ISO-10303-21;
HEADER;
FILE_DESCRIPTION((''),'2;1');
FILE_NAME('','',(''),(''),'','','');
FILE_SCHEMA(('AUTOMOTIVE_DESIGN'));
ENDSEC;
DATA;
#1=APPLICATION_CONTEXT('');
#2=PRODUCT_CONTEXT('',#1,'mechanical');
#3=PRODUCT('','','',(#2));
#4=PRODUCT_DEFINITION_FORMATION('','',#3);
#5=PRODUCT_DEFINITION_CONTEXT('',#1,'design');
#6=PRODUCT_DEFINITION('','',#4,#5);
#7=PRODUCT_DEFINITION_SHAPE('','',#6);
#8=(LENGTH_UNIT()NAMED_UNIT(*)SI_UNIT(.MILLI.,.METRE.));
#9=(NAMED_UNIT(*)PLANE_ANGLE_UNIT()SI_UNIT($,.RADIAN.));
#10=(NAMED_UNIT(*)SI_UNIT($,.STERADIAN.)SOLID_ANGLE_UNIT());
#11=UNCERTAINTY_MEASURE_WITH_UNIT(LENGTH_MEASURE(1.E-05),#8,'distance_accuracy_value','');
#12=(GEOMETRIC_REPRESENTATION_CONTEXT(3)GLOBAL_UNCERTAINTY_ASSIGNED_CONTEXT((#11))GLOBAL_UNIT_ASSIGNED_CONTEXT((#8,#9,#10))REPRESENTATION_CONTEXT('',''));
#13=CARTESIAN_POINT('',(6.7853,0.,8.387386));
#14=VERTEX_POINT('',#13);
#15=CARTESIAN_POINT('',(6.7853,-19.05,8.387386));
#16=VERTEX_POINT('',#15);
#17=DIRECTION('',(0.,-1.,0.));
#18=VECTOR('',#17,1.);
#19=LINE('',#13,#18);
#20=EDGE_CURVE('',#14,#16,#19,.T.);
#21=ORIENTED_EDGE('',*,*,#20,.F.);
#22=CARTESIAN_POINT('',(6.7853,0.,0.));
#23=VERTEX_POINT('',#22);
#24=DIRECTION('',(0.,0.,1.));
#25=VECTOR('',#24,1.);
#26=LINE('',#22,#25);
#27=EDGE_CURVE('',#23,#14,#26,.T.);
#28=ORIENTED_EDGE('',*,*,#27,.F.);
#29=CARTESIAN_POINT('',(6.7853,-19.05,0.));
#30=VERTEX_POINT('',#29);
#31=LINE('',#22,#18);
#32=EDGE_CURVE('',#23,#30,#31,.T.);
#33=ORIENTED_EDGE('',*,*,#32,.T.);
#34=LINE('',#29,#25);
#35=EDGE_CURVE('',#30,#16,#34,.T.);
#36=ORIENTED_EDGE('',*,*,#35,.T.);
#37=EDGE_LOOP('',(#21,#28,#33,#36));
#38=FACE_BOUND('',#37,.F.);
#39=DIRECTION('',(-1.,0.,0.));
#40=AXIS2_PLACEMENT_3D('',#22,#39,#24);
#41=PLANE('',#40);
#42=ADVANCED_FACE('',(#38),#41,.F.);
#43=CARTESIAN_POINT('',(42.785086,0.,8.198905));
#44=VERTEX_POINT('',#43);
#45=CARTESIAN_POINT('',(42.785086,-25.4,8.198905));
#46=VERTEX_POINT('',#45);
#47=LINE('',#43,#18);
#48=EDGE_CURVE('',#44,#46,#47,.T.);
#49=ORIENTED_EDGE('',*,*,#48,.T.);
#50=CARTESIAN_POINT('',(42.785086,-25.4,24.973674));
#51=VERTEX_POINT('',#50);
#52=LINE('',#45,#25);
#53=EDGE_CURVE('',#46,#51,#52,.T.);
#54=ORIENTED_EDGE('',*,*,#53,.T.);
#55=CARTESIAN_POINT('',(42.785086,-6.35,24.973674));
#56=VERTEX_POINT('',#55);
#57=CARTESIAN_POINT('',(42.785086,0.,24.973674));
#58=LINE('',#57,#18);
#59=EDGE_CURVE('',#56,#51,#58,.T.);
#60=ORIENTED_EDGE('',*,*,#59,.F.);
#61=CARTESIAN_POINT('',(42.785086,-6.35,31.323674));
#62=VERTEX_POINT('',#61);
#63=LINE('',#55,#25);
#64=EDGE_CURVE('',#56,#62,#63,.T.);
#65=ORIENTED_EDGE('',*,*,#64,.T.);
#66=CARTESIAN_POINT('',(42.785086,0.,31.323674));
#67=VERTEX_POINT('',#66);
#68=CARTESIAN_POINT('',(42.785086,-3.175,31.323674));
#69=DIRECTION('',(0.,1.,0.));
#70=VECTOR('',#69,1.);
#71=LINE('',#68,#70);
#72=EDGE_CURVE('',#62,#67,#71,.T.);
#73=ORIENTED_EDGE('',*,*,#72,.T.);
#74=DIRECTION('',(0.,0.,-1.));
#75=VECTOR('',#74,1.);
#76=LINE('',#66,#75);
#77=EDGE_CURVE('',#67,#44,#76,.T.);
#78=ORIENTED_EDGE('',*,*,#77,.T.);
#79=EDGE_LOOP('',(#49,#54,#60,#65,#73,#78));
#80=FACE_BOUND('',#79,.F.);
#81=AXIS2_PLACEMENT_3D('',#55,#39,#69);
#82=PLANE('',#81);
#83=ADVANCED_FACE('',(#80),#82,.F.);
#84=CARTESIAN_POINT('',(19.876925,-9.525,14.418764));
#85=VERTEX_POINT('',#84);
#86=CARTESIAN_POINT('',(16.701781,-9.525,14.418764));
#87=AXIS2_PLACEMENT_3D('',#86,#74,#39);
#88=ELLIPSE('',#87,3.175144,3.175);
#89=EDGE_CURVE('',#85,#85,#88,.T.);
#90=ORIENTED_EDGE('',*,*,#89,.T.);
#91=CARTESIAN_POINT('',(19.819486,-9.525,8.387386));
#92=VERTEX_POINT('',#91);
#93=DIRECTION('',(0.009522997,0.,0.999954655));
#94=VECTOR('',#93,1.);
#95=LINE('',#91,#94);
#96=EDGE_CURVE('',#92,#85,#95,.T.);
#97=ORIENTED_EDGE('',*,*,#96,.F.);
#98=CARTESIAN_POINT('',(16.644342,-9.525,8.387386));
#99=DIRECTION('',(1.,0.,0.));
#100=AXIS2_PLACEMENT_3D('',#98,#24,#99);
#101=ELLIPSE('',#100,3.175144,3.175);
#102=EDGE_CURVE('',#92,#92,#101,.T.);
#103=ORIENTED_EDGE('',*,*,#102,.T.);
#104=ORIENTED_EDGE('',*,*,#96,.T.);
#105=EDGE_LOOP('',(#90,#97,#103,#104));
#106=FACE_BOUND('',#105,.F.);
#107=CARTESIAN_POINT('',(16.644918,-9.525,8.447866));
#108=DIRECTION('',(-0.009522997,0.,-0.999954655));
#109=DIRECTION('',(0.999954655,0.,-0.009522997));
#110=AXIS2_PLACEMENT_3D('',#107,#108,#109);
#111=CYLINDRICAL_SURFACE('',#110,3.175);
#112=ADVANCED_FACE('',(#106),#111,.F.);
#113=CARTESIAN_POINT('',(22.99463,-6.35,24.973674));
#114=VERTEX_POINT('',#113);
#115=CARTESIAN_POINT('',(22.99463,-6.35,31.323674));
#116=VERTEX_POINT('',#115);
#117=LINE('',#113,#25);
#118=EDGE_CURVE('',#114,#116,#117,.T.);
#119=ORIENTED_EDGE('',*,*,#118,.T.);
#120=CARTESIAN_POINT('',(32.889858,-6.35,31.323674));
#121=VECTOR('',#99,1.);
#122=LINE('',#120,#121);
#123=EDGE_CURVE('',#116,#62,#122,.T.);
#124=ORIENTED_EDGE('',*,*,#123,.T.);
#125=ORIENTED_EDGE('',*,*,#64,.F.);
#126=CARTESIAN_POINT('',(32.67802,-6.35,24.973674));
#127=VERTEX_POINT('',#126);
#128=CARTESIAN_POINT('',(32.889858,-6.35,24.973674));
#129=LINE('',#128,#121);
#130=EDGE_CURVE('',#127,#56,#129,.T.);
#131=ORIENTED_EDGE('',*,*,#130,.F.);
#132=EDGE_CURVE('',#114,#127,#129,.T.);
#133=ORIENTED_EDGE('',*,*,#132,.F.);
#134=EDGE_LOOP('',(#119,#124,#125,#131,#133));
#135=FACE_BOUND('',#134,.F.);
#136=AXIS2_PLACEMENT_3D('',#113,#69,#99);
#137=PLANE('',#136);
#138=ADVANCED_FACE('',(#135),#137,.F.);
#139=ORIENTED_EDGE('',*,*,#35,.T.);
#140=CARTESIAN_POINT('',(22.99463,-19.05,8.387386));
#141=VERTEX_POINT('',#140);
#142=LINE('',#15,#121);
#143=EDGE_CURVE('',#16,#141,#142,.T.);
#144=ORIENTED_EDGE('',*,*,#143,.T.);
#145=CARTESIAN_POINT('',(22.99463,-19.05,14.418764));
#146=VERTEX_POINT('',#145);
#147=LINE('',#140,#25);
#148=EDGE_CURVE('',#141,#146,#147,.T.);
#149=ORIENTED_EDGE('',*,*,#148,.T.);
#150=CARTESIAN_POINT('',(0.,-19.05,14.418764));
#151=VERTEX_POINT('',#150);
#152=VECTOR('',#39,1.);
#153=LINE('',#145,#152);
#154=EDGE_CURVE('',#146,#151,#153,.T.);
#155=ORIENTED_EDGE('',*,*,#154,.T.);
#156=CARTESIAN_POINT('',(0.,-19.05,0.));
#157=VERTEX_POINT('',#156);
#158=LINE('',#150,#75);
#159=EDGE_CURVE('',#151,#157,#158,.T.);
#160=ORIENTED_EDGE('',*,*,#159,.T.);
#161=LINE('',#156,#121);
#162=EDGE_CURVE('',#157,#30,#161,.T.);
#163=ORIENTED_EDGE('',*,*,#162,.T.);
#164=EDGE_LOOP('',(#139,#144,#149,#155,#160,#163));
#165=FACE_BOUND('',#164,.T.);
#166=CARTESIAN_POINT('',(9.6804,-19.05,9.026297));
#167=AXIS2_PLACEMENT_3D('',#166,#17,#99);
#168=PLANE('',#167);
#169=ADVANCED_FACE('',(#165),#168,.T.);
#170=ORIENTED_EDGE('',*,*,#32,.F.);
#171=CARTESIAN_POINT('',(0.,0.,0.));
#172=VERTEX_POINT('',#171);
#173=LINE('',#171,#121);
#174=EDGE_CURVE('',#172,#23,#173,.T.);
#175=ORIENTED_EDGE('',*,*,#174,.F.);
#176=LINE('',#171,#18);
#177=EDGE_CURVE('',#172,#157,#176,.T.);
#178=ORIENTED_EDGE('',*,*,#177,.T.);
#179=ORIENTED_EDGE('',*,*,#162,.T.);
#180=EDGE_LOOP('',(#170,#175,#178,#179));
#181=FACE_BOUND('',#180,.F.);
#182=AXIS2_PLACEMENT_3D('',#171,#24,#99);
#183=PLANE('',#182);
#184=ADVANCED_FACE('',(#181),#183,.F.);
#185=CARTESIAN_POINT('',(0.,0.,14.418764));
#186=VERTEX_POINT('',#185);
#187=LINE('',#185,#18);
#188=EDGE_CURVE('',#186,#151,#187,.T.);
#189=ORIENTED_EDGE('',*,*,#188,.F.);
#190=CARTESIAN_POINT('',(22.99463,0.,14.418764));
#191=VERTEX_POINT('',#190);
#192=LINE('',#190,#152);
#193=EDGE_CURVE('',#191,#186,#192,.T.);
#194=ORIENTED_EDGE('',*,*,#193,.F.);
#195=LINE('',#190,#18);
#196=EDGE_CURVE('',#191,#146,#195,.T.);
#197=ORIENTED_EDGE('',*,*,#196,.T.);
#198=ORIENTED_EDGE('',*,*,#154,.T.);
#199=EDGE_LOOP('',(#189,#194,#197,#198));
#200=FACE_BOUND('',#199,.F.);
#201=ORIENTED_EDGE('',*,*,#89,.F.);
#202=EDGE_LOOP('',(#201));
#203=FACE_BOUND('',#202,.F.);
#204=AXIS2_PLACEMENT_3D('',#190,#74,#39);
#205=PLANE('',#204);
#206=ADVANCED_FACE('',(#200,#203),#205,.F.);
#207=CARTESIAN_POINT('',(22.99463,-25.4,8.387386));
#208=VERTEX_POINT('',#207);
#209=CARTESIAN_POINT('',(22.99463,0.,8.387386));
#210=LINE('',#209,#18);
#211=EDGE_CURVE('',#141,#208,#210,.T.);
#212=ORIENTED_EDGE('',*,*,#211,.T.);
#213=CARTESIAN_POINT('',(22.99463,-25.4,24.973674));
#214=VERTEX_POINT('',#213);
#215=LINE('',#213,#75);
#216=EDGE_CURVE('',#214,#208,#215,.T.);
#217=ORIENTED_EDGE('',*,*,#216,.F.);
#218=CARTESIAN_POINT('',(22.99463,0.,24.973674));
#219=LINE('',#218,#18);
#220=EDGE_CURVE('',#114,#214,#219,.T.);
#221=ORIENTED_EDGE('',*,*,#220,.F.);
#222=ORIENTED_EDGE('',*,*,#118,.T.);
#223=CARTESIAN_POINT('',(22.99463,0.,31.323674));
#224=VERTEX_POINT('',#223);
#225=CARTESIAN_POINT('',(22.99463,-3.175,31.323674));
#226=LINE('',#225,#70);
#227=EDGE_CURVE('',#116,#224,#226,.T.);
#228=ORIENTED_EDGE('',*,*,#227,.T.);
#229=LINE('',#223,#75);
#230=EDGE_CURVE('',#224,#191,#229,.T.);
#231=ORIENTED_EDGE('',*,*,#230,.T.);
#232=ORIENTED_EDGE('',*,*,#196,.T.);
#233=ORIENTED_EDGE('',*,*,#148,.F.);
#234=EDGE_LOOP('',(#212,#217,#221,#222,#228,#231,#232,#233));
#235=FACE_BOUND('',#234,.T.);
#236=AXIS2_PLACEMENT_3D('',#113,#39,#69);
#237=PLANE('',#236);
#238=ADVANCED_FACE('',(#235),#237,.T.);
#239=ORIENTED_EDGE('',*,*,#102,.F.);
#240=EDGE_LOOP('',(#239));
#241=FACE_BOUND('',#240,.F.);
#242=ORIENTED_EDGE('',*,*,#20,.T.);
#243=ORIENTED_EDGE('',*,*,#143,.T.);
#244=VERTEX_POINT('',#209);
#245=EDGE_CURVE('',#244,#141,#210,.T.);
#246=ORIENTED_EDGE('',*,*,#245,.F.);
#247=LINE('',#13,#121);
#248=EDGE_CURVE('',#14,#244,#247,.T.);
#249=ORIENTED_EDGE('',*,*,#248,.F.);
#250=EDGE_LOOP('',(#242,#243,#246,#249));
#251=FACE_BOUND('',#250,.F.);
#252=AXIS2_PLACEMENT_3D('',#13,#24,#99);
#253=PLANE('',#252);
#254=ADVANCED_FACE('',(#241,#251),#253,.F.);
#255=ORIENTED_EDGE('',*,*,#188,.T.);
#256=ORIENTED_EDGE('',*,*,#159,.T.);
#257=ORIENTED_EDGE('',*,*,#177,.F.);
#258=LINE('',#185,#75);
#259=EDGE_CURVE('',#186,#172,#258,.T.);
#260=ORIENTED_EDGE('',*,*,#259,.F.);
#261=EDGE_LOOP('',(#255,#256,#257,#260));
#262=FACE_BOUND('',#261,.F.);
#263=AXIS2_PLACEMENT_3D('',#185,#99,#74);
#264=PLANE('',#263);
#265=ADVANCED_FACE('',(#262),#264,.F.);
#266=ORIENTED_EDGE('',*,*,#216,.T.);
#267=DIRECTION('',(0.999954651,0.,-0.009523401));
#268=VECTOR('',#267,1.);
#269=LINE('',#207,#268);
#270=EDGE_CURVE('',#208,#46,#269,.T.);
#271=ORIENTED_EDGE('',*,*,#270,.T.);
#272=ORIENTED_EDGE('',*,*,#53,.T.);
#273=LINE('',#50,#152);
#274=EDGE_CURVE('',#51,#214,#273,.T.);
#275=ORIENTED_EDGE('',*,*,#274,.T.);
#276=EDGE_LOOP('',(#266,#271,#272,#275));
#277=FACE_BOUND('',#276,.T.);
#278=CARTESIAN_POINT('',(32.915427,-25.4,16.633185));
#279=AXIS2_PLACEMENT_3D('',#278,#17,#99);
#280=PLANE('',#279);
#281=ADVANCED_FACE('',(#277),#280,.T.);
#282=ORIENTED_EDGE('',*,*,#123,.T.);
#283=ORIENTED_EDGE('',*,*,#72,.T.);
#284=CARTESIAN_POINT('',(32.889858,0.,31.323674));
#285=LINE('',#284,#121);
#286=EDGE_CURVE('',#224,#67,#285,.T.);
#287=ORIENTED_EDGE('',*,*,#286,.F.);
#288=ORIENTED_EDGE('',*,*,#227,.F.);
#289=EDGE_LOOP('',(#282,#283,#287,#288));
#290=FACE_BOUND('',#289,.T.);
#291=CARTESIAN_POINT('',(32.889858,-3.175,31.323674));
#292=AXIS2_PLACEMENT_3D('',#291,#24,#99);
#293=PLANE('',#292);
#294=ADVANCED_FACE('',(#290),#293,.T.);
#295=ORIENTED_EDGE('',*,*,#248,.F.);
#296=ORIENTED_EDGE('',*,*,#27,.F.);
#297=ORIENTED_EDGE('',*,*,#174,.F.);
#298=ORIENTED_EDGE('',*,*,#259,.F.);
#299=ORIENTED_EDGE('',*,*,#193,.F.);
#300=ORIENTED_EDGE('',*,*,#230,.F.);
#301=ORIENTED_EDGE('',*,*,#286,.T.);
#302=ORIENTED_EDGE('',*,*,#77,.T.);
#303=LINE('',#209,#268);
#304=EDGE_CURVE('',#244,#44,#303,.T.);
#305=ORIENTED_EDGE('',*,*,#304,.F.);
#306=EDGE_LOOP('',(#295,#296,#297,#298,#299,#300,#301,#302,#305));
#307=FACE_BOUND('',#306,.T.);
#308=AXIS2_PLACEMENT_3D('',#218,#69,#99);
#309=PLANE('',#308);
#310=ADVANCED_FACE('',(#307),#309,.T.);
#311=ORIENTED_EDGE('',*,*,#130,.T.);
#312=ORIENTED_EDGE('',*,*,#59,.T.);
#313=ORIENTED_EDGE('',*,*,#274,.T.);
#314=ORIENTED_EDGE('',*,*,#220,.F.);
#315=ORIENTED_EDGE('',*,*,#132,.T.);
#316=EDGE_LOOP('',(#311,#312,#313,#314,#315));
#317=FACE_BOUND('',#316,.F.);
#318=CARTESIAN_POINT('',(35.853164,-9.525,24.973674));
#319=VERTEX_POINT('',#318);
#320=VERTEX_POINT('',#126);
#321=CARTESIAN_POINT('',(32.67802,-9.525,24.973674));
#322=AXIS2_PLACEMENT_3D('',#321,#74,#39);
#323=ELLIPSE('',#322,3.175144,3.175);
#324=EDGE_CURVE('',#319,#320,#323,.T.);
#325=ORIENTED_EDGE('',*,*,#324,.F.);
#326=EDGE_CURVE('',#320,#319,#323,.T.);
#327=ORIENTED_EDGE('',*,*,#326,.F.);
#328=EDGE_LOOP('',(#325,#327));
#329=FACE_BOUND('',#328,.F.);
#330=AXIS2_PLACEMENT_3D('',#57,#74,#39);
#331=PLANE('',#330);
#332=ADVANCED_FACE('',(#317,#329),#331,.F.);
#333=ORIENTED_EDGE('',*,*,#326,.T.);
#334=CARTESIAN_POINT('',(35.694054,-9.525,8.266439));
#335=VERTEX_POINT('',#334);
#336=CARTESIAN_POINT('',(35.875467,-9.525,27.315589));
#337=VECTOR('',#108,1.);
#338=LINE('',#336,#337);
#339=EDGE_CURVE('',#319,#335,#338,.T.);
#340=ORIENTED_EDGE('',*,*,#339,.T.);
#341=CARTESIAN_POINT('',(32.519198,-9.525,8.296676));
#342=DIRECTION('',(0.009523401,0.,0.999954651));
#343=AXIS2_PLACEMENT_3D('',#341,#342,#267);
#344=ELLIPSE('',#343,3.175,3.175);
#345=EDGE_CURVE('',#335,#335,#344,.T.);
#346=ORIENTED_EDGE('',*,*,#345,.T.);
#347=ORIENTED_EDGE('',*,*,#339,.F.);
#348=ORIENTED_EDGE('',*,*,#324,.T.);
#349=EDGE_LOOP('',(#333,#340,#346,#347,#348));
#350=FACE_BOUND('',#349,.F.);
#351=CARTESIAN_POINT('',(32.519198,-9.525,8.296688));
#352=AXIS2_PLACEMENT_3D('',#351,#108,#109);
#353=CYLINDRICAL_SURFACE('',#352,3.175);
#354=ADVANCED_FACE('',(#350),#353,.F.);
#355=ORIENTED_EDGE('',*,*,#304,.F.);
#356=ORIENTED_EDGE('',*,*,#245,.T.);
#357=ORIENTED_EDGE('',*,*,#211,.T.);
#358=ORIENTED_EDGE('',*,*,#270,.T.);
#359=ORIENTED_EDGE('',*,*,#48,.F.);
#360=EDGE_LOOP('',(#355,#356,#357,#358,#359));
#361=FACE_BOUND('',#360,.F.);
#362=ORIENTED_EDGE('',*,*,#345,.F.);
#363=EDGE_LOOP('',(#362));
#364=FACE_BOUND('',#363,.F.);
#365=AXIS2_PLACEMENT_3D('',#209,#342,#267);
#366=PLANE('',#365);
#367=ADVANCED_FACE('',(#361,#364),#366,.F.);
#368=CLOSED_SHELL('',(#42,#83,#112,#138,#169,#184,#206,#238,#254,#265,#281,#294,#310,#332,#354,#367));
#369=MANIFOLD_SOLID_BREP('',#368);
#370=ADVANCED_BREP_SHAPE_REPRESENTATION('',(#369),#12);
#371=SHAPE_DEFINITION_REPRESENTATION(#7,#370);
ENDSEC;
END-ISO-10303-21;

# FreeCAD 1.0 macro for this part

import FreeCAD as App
import Part
import Sketcher
Q = App.Units.Quantity


def add_polygon(sketch, points):
    """Adds a closed chain of lines whose ends are joined by coincident constraints."""
    first, n = sketch.GeometryCount, len(points)
    for a, b in zip(points, points[1:] + points[:1]):
        sketch.addGeometry(Part.LineSegment(App.Vector(*a, 0), App.Vector(*b, 0)), False)
    for i in range(n):
        sketch.addConstraint(Sketcher.Constraint("Coincident", first + i, 2, first + (i + 1) % n, 1))

doc = App.newDocument("Part")
body = doc.addObject("PartDesign::Body", "Body")

sketch1 = body.newObject("Sketcher::SketchObject", "Sketch")
sketch1.AttachmentSupport = (doc.getObject("XZ_Plane"), [""])
sketch1.MapMode = "FlatFace"
add_polygon(sketch1, [(0, 14.418764), (0, 0), (6.7853, 0), (6.7853, 8.387386), (22.99463, 8.387386), (22.99463, 14.418764)])
sketch1.addConstraint(Sketcher.Constraint("Vertical", 0))
sketch1.addConstraint(Sketcher.Constraint("Horizontal", 1))
sketch1.addConstraint(Sketcher.Constraint("Vertical", 2))
sketch1.addConstraint(Sketcher.Constraint("Horizontal", 3))
sketch1.addConstraint(Sketcher.Constraint("Vertical", 4))
sketch1.addConstraint(Sketcher.Constraint("Horizontal", 5))
sketch1.addConstraint(Sketcher.Constraint("Coincident", 0, 2, -1, 1))
sketch1.addConstraint(Sketcher.Constraint("DistanceX", 1, 1, 1, 2, 6.7853))
sketch1.addConstraint(Sketcher.Constraint("DistanceX", 3, 1, 3, 2, 16.20933))
sketch1.addConstraint(Sketcher.Constraint("DistanceY", 0, 2, 0, 1, 14.418764))
sketch1.addConstraint(Sketcher.Constraint("DistanceY", 2, 1, 2, 2, 8.387386))
pad1 = body.newObject("PartDesign::Pad", "Pad")
pad1.Profile = sketch1
pad1.Length = Q("0.75 in")

sketch2 = body.newObject("Sketcher::SketchObject", "Sketch001")
sketch2.AttachmentSupport = (doc.getObject("XZ_Plane"), [""])
sketch2.MapMode = "FlatFace"
add_polygon(sketch2, [(22.99463, 24.973674), (22.99463, 8.387386), (42.785086, 8.198905), (42.785086, 24.973674)])
sketch2.addConstraint(Sketcher.Constraint("Vertical", 0))
sketch2.addConstraint(Sketcher.Constraint("Vertical", 2))
sketch2.addConstraint(Sketcher.Constraint("Horizontal", 3))
sketch2.addConstraint(Sketcher.Constraint("DistanceY", 2, 1, 2, 2, 16.774769))
sketch2.addConstraint(Sketcher.Constraint("DistanceX", 3, 2, 3, 1, 19.790456))
sketch2.addConstraint(Sketcher.Constraint("DistanceY", 0, 2, 0, 1, 16.586288))
sketch2.addConstraint(Sketcher.Constraint("DistanceX", -1, 1, 0, 2, 22.99463))
sketch2.addConstraint(Sketcher.Constraint("DistanceY", -1, 1, 0, 2, 8.387386))
pad2 = body.newObject("PartDesign::Pad", "Pad001")
pad2.Profile = sketch2
pad2.Length = Q("1 in")

sketch3 = body.newObject("Sketcher::SketchObject", "Sketch002")
sketch3.AttachmentSupport = (doc.getObject("XY_Plane"), [""])
sketch3.MapMode = "FlatFace"
sketch3.AttachmentOffset = App.Placement(App.Vector(0, 0, 24.973674), App.Rotation())
add_polygon(sketch3, [(22.99463, 0), (22.99463, -6.35), (42.785086, -6.35), (42.785086, 0)])
sketch3.addConstraint(Sketcher.Constraint("Vertical", 0))
sketch3.addConstraint(Sketcher.Constraint("Horizontal", 1))
sketch3.addConstraint(Sketcher.Constraint("Vertical", 2))
sketch3.addConstraint(Sketcher.Constraint("Horizontal", 3))
sketch3.addConstraint(Sketcher.Constraint("PointOnObject", 2, 2, -1))
sketch3.addConstraint(Sketcher.Constraint("DistanceY", 0, 2, 0, 1, Q("0.25 in")))
sketch3.addConstraint(Sketcher.Constraint("DistanceX", 1, 1, 1, 2, 19.790456))
sketch3.addConstraint(Sketcher.Constraint("DistanceX", -1, 1, 0, 2, 22.99463))
pad3 = body.newObject("PartDesign::Pad", "Pad002")
pad3.Profile = sketch3
pad3.Length = Q("0.25 in")

sketch4 = body.newObject("Sketcher::SketchObject", "Sketch003")
sketch4.Placement = App.Placement(App.Vector(0.081958, 0, 8.605602), App.Rotation(App.Vector(0.999954655, 0, -0.009522997), App.Vector(0, -1, 0), App.Vector(-0.009522997, 0, -0.999954655), "ZXY"))
sketch4.addGeometry(Part.Circle(App.Vector(16.563711, 9.525, 0), App.Vector(0, 0, 1), 3.175), False)
sketch4.addGeometry(Part.Circle(App.Vector(32.438711, 9.525, 0), App.Vector(0, 0, 1), 3.175), False)
sketch4.addConstraint(Sketcher.Constraint("Equal", 0, 1))
sketch4.addConstraint(Sketcher.Constraint("Horizontal", 0, 3, 1, 3))
sketch4.addConstraint(Sketcher.Constraint("Diameter", 0, Q("0.25 in")))
sketch4.addConstraint(Sketcher.Constraint("DistanceY", -1, 1, 0, 3, Q("0.375 in")))
sketch4.addConstraint(Sketcher.Constraint("DistanceX", 0, 3, 1, 3, Q("0.625 in")))
sketch4.addConstraint(Sketcher.Constraint("DistanceX", -1, 1, 0, 3, 16.563711))
pocket1 = body.newObject("PartDesign::Pocket", "Pocket")
pocket1.Profile = sketch4
pocket1.Length = Q("1.5 in")
pocket1.Midplane = True

doc.recompute()
